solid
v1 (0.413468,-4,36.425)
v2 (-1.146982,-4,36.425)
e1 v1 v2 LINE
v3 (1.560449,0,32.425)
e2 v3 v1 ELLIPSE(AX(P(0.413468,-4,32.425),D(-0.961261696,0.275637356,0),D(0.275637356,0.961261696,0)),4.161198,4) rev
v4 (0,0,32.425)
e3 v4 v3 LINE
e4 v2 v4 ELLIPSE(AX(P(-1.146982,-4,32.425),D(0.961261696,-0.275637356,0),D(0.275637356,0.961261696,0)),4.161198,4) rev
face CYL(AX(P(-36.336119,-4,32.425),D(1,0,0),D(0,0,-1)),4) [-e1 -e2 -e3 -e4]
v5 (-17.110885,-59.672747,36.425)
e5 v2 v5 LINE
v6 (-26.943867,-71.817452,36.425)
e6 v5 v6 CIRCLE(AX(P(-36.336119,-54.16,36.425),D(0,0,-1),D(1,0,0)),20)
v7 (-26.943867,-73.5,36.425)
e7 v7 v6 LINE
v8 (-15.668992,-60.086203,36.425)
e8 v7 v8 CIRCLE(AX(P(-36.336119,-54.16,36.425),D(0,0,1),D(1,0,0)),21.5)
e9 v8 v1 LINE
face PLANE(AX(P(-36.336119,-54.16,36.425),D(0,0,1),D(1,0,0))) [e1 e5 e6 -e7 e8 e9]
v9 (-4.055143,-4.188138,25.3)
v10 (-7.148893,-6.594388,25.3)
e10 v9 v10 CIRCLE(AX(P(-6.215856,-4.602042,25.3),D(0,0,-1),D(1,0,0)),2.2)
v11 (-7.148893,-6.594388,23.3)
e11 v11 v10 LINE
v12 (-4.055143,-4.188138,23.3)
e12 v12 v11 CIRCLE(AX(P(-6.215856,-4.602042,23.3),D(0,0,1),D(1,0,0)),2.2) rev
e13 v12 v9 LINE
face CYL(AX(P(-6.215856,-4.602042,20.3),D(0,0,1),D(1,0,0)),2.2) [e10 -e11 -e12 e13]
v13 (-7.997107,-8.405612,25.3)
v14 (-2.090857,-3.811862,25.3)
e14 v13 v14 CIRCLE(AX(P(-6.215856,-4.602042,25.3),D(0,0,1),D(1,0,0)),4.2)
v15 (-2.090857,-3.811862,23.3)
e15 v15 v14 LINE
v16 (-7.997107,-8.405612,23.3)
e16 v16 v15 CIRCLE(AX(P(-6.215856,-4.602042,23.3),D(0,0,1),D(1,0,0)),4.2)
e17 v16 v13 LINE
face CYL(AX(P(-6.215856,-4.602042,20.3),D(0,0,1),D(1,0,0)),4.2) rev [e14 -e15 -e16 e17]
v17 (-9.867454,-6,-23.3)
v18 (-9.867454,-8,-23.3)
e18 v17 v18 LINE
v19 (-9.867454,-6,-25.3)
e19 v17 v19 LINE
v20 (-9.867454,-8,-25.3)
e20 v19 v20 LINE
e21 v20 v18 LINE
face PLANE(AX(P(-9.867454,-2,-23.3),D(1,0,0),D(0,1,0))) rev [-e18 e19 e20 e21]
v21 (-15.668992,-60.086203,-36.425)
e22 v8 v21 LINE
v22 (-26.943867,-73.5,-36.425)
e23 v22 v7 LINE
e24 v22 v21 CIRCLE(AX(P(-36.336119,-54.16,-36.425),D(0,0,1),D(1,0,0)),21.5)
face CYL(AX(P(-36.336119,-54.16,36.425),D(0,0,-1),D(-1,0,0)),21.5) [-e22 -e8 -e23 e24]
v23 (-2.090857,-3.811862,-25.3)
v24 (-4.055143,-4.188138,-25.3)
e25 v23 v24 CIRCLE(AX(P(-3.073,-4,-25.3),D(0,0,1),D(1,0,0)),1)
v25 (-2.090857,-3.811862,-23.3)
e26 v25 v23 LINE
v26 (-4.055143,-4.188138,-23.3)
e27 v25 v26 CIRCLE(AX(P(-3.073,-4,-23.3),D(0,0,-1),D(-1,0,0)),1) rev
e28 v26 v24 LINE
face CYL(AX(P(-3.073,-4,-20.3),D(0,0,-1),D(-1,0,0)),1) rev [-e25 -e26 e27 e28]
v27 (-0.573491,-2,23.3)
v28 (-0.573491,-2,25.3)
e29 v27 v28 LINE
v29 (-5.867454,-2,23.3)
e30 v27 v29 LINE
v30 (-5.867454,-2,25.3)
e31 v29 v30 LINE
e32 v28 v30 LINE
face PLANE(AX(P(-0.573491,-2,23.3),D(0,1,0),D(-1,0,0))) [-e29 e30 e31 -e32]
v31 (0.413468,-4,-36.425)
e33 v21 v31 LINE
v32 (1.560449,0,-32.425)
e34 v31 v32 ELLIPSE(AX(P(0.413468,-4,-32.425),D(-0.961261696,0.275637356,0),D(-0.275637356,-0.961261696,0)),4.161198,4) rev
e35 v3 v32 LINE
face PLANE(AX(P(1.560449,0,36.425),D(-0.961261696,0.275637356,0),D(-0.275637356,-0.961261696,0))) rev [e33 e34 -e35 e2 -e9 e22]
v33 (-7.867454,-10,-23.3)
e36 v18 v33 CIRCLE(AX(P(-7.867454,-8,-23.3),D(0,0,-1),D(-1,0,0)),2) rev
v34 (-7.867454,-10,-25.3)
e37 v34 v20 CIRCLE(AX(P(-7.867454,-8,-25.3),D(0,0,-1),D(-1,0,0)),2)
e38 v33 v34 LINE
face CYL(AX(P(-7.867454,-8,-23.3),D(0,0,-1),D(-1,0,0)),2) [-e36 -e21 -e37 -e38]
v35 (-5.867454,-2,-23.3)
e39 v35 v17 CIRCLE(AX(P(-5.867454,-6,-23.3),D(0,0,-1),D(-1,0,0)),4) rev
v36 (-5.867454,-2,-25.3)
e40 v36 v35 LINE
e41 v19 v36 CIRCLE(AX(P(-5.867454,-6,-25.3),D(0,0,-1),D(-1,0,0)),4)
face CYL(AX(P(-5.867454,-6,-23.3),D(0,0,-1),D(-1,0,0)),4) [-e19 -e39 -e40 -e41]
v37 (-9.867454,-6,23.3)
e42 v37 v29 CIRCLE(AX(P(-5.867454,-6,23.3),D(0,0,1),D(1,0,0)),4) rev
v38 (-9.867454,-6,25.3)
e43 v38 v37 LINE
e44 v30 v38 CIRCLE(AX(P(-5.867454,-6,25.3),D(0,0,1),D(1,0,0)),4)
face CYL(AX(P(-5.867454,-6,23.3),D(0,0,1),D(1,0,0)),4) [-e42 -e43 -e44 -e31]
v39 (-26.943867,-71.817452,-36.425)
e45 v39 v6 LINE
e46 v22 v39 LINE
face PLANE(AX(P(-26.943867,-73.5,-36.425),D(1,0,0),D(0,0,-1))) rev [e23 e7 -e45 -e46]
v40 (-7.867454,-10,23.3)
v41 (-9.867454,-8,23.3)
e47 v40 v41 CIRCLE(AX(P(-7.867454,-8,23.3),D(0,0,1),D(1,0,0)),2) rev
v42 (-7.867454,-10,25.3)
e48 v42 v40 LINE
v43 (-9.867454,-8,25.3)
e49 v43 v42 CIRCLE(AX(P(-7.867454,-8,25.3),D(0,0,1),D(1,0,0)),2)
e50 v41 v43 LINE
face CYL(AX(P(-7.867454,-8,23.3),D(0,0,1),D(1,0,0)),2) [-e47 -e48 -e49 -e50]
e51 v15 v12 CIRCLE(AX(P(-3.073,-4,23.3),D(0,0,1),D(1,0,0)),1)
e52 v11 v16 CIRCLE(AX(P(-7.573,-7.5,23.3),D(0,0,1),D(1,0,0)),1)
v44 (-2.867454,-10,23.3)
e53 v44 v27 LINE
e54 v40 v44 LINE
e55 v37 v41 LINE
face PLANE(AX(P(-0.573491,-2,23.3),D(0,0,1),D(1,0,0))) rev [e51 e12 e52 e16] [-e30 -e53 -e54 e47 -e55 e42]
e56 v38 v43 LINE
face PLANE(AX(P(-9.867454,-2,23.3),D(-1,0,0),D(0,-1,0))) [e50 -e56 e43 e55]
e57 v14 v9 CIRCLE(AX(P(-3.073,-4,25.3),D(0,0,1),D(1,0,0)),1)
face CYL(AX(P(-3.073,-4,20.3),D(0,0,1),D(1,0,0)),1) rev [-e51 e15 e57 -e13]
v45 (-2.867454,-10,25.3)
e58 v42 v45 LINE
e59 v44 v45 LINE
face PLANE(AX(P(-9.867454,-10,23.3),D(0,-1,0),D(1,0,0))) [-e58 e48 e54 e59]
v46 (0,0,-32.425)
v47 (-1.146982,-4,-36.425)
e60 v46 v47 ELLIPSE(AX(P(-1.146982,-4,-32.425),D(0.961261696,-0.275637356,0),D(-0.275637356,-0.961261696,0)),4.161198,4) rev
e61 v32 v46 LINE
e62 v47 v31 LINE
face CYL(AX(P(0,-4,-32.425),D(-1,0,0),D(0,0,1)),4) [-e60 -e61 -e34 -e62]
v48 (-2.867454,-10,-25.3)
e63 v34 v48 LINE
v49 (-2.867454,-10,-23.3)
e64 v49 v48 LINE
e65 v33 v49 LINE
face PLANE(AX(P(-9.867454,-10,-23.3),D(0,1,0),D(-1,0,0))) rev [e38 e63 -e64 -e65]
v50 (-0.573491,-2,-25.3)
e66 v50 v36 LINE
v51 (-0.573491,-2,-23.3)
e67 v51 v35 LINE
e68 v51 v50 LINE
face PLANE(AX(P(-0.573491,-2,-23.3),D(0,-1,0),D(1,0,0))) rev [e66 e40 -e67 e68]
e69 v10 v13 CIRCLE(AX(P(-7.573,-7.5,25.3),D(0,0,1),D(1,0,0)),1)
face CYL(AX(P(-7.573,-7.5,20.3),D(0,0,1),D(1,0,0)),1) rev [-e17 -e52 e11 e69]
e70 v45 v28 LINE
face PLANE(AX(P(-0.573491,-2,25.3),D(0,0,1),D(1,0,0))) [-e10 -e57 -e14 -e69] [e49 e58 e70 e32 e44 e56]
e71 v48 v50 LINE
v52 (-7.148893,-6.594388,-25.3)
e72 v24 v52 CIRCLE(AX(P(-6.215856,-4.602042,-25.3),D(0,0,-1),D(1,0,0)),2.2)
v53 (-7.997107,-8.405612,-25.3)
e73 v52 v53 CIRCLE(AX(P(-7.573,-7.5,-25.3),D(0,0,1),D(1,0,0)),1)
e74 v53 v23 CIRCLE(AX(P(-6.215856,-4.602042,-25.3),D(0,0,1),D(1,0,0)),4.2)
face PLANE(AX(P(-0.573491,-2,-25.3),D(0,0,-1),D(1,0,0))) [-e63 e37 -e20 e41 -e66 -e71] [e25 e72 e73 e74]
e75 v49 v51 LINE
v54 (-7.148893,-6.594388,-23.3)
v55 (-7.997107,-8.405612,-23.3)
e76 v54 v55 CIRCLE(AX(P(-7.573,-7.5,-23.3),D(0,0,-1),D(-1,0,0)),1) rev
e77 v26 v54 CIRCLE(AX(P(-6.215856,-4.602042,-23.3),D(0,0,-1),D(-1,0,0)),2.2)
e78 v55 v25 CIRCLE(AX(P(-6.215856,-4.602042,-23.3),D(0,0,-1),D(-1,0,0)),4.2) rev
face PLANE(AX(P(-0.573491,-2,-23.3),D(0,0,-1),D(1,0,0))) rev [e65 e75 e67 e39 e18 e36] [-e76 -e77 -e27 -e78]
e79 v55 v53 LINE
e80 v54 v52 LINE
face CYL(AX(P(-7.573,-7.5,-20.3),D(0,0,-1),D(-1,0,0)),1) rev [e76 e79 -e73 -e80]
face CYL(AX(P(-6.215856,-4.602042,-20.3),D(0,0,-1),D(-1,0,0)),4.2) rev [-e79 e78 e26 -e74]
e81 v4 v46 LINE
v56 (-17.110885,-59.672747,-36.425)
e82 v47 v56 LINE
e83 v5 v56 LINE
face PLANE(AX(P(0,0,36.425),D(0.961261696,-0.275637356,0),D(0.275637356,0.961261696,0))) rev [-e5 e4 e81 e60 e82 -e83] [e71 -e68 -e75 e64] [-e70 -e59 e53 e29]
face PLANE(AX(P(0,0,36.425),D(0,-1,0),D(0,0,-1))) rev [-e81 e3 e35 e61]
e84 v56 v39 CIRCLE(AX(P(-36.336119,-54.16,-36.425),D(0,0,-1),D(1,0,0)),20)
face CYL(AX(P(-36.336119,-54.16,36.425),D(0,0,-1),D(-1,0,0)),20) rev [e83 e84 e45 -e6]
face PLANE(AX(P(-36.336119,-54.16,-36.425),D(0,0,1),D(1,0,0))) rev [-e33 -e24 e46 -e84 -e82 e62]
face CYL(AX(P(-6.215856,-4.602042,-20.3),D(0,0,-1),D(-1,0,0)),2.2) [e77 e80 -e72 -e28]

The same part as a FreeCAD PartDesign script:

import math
import FreeCAD as App
import Part
import Sketcher
Q = App.Units.Quantity


def edges_at(feature, points):
    """Names of the edges that pass closest to the given points."""
    edges = feature.Shape.Edges
    near = lambda p: min(range(len(edges)), key=lambda i: edges[i].distToShape(Part.Vertex(*p))[0])
    return sorted({f"Edge{near(p) + 1}" for p in points})

doc = App.newDocument("Part")
body = doc.addObject("PartDesign::Body", "Body")

sketch1 = body.newObject("Sketcher::SketchObject", "Sketch")
sketch1.AttachmentSupport = (doc.getObject("XY_Plane"), [""])
sketch1.MapMode = "FlatFace"
sketch1.addGeometry([
    Part.LineSegment(App.Vector(0, 0, 0), App.Vector(-17.11, -59.67, 0)),
    Part.ArcOfCircle(Part.Circle(App.Vector(-36.34, -54.16, 0), App.Vector(0, 0, 1), 20), math.radians(-75), math.radians(-16)),
    Part.LineSegment(App.Vector(-31.24, -73.5, 0), App.Vector(-30.86, -74.95, 0)),
    Part.ArcOfCircle(Part.Circle(App.Vector(-36.34, -54.16, 0), App.Vector(0, 0, 1), 21.5), math.radians(-75), math.radians(-16)),
    Part.LineSegment(App.Vector(-15.67, -60.09, 0), App.Vector(1.44, -0.41, 0)),
    Part.LineSegment(App.Vector(1.44, -0.41, 0), App.Vector(1.56, 0, 0)),
    Part.LineSegment(App.Vector(1.56, 0, 0), App.Vector(0, 0, 0)),
], False)
sketch1.addConstraint([
    Sketcher.Constraint("Tangent", 0, 2, 1, 2),
    Sketcher.Constraint("Coincident", 1, 1, 2, 1),
    Sketcher.Constraint("Coincident", 2, 2, 3, 1),
    Sketcher.Constraint("Tangent", 3, 2, 4, 1),
    Sketcher.Constraint("Coincident", 4, 2, 5, 1),
    Sketcher.Constraint("Coincident", 5, 2, 6, 1),
    Sketcher.Constraint("Coincident", 6, 2, 0, 1),
    Sketcher.Constraint("Horizontal", 6),
    Sketcher.Constraint("Coincident", 6, 2, -1, 1),
    Sketcher.Constraint("Coincident", 3, 3, 1, 3),
    Sketcher.Constraint("Parallel", 0, 4),
    Sketcher.Constraint("Parallel", 4, 5),
    Sketcher.Constraint("Equal", 0, 4),
    Sketcher.Constraint("Radius", 1, Q("20 mm")),
    Sketcher.Constraint("Radius", 3, Q("21.5 mm")),
    Sketcher.Constraint("Angle", 0, Q("-106 deg")),
    Sketcher.Constraint("DistanceY", 1, 1, -1, 1, Q("73.5 mm")),
    Sketcher.Constraint("DistanceY", 1, 3, -1, 1, Q("54.16 mm")),
    Sketcher.Constraint("DistanceY", 2, 2, -1, 1, Q("74.9505 mm")),
])
pad1 = body.newObject("PartDesign::Pad", "Pad")
pad1.Profile = sketch1
pad1.Length = 72.85
pad1.Midplane = True

sketch2 = body.newObject("Sketcher::SketchObject", "Sketch001")
sketch2.AttachmentSupport = (doc.getObject("XY_Plane"), [""])
sketch2.MapMode = "FlatFace"
sketch2.AttachmentOffset = App.Placement(App.Vector(0, 0, 36.425), App.Rotation())
sketch2.addGeometry([
    Part.LineSegment(App.Vector(-26.9, -73.5, 0), App.Vector(-31.2, -73.5, 0)),
    Part.LineSegment(App.Vector(-31.2, -73.5, 0), App.Vector(-30.9, -75, 0)),
    Part.ArcOfCircle(Part.Circle(App.Vector(-36.3, -54.2, 0), App.Vector(0, 0, 1), 21.5), math.radians(-75.24), math.radians(-64.1)),
], False)
sketch2.addConstraint([
    Sketcher.Constraint("Coincident", 0, 2, 1, 1),
    Sketcher.Constraint("Coincident", 1, 2, 2, 1),
    Sketcher.Constraint("Coincident", 2, 2, 0, 1),
    Sketcher.Constraint("Horizontal", 0),
    Sketcher.Constraint("Radius", 2, Q("21.5 mm")),
    Sketcher.Constraint("Distance", 1, Q("1.5 mm")),
    Sketcher.Constraint("DistanceY", 0, 2, -1, 1, Q("73.5 mm")),
    Sketcher.Constraint("DistanceY", 2, 3, -1, 1, Q("54.16 mm")),
    Sketcher.Constraint("DistanceY", 1, 2, -1, 1, Q("74.9505 mm")),
    Sketcher.Constraint("DistanceX", 2, 3, -1, 1, Q("36.336119 mm")),
])
pocket1 = body.newObject("PartDesign::Pocket", "Pocket")
pocket1.Profile = sketch2
pocket1.Type = "ThroughAll"

sketch3 = body.newObject("Sketcher::SketchObject", "Sketch002")
sketch3.AttachmentSupport = (doc.getObject("XY_Plane"), [""])
sketch3.MapMode = "FlatFace"
sketch3.AttachmentOffset = App.Placement(App.Vector(0, 0, 36.425), App.Rotation())
sketch3.addGeometry([
    Part.LineSegment(App.Vector(-31.2, -73.5, 0), App.Vector(-26.9, -73.5, 0)),
    Part.LineSegment(App.Vector(-26.9, -73.5, 0), App.Vector(-26.9, -71.8, 0)),
    Part.ArcOfCircle(Part.Circle(App.Vector(-36.3, -54.2, 0), App.Vector(0, 0, 1), 20), math.radians(-75.24), math.radians(-61.99)),
], False)
sketch3.addConstraint([
    Sketcher.Constraint("Coincident", 0, 2, 1, 1),
    Sketcher.Constraint("Coincident", 1, 2, 2, 2),
    Sketcher.Constraint("Coincident", 2, 1, 0, 1),
    Sketcher.Constraint("Horizontal", 0),
    Sketcher.Constraint("Vertical", 1),
    Sketcher.Constraint("Radius", 2, Q("20 mm")),
    Sketcher.Constraint("DistanceY", 0, 2, -1, 1, Q("73.5 mm")),
    Sketcher.Constraint("DistanceY", 2, 3, -1, 1, Q("54.16 mm")),
    Sketcher.Constraint("DistanceY", 1, 1, 1, 2, Q("1.682548 mm")),
    Sketcher.Constraint("DistanceX", 2, 3, -1, 1, Q("36.336119 mm")),
])
pocket2 = body.newObject("PartDesign::Pocket", "Pocket001")
pocket2.Profile = sketch3
pocket2.Type = "ThroughAll"
doc.recompute()

fillet = body.newObject("PartDesign::Fillet", "Fillet")
fillet.Base = (pocket2, edges_at(pocket2, [(0.78, 0, 36.425), (0.78, 0, -36.425)]))
fillet.Radius = 4

sketch4 = body.newObject("Sketcher::SketchObject", "Sketch003")
sketch4.AttachmentSupport = (doc.getObject("XY_Plane"), [""])
sketch4.MapMode = "FlatFace"
sketch4.AttachmentOffset = App.Placement(App.Vector(0, 0, 25.3), App.Rotation())
sketch4.addGeometry([
    Part.LineSegment(App.Vector(-1, -2, 0), App.Vector(-10, -2, 0)),
    Part.LineSegment(App.Vector(-10, -2, 0), App.Vector(-10, -10, 0)),
    Part.LineSegment(App.Vector(-10, -10, 0), App.Vector(-3, -10, 0)),
    Part.LineSegment(App.Vector(-3, -10, 0), App.Vector(-1, -2, 0)),
], False)
sketch4.addConstraint([
    Sketcher.Constraint("Coincident", 0, 2, 1, 1),
    Sketcher.Constraint("Coincident", 1, 2, 2, 1),
    Sketcher.Constraint("Coincident", 2, 2, 3, 1),
    Sketcher.Constraint("Coincident", 3, 2, 0, 1),
    Sketcher.Constraint("Horizontal", 0),
    Sketcher.Constraint("Vertical", 1),
    Sketcher.Constraint("Horizontal", 2),
    Sketcher.Constraint("DistanceX", 2, 1, 2, 2, Q("7 mm")),
    Sketcher.Constraint("DistanceY", 1, 2, 1, 1, Q("8 mm")),
    Sketcher.Constraint("Angle", 3, Q("74 deg")),
    Sketcher.Constraint("DistanceY", 0, 2, -1, 1, Q("2 mm")),
    Sketcher.Constraint("DistanceX", 3, 2, -1, 1, Q("0.573491 mm")),
])
pad2 = body.newObject("PartDesign::Pad", "Pad001")
pad2.Profile = sketch4
pad2.Length = 2
pad2.Reversed = True

sketch5 = body.newObject("Sketcher::SketchObject", "Sketch004")
sketch5.AttachmentSupport = (doc.getObject("XY_Plane"), [""])
sketch5.MapMode = "FlatFace"
sketch5.AttachmentOffset = App.Placement(App.Vector(0, 0, 25.3), App.Rotation())
sketch5.addGeometry([
    Part.ArcOfCircle(Part.Circle(App.Vector(-3.1, -4, 0), App.Vector(0, 0, 1), 1), math.radians(11), math.radians(191)),
    Part.ArcOfCircle(Part.Circle(App.Vector(-6.2, -4.6, 0), App.Vector(0, 0, 1), 2.2), math.radians(-115), math.radians(11)),
    Part.ArcOfCircle(Part.Circle(App.Vector(-7.6, -7.5, 0), App.Vector(0, 0, 1), 1), math.radians(65), math.radians(245)),
    Part.ArcOfCircle(Part.Circle(App.Vector(-6.2, -4.6, 0), App.Vector(0, 0, 1), 4.2), math.radians(-115), math.radians(11)),
], False)
sketch5.addConstraint([
    Sketcher.Constraint("Tangent", 0, 2, 1, 2),
    Sketcher.Constraint("Tangent", 1, 1, 2, 1),
    Sketcher.Constraint("Tangent", 2, 2, 3, 1),
    Sketcher.Constraint("Tangent", 3, 2, 0, 1),
    Sketcher.Constraint("Coincident", 3, 3, 1, 3),
    Sketcher.Constraint("Radius", 0, Q("1 mm")),
    Sketcher.Constraint("Radius", 1, Q("2.2 mm")),
    Sketcher.Constraint("DistanceY", 0, 3, -1, 1, Q("4 mm")),
    Sketcher.Constraint("DistanceY", 2, 3, -1, 1, Q("7.5 mm")),
    Sketcher.Constraint("DistanceX", 2, 3, 0, 3, Q("4.5 mm")),
    Sketcher.Constraint("DistanceX", 0, 3, -1, 1, Q("3.073 mm")),
])
pocket3 = body.newObject("PartDesign::Pocket", "Pocket002")
pocket3.Profile = sketch5
pocket3.Length = 5
doc.recompute()

fillet2 = body.newObject("PartDesign::Fillet", "Fillet001")
fillet2.Base = (pocket3, edges_at(pocket3, [(-9.867, -2, 24.3)]))
fillet2.Radius = 4
doc.recompute()

fillet3 = body.newObject("PartDesign::Fillet", "Fillet002")
fillet3.Base = (fillet2, edges_at(fillet2, [(-9.867, -10, 24.3)]))
fillet3.Radius = 2
doc.recompute()

mirrored = body.newObject("PartDesign::Mirrored", "Mirrored")
mirrored.Originals = [pad2, pocket3]
mirrored.MirrorPlane = (doc.getObject("XY_Plane"), [""])
body.Tip = mirrored
doc.recompute()

fillet4 = body.newObject("PartDesign::Fillet", "Fillet003")
fillet4.Base = (mirrored, edges_at(mirrored, [(-9.867, -2, -24.3)]))
fillet4.Radius = 4
doc.recompute()

fillet5 = body.newObject("PartDesign::Fillet", "Fillet004")
fillet5.Base = (fillet4, edges_at(fillet4, [(-9.867, -10, -24.3)]))
fillet5.Radius = 2

doc.recompute()
